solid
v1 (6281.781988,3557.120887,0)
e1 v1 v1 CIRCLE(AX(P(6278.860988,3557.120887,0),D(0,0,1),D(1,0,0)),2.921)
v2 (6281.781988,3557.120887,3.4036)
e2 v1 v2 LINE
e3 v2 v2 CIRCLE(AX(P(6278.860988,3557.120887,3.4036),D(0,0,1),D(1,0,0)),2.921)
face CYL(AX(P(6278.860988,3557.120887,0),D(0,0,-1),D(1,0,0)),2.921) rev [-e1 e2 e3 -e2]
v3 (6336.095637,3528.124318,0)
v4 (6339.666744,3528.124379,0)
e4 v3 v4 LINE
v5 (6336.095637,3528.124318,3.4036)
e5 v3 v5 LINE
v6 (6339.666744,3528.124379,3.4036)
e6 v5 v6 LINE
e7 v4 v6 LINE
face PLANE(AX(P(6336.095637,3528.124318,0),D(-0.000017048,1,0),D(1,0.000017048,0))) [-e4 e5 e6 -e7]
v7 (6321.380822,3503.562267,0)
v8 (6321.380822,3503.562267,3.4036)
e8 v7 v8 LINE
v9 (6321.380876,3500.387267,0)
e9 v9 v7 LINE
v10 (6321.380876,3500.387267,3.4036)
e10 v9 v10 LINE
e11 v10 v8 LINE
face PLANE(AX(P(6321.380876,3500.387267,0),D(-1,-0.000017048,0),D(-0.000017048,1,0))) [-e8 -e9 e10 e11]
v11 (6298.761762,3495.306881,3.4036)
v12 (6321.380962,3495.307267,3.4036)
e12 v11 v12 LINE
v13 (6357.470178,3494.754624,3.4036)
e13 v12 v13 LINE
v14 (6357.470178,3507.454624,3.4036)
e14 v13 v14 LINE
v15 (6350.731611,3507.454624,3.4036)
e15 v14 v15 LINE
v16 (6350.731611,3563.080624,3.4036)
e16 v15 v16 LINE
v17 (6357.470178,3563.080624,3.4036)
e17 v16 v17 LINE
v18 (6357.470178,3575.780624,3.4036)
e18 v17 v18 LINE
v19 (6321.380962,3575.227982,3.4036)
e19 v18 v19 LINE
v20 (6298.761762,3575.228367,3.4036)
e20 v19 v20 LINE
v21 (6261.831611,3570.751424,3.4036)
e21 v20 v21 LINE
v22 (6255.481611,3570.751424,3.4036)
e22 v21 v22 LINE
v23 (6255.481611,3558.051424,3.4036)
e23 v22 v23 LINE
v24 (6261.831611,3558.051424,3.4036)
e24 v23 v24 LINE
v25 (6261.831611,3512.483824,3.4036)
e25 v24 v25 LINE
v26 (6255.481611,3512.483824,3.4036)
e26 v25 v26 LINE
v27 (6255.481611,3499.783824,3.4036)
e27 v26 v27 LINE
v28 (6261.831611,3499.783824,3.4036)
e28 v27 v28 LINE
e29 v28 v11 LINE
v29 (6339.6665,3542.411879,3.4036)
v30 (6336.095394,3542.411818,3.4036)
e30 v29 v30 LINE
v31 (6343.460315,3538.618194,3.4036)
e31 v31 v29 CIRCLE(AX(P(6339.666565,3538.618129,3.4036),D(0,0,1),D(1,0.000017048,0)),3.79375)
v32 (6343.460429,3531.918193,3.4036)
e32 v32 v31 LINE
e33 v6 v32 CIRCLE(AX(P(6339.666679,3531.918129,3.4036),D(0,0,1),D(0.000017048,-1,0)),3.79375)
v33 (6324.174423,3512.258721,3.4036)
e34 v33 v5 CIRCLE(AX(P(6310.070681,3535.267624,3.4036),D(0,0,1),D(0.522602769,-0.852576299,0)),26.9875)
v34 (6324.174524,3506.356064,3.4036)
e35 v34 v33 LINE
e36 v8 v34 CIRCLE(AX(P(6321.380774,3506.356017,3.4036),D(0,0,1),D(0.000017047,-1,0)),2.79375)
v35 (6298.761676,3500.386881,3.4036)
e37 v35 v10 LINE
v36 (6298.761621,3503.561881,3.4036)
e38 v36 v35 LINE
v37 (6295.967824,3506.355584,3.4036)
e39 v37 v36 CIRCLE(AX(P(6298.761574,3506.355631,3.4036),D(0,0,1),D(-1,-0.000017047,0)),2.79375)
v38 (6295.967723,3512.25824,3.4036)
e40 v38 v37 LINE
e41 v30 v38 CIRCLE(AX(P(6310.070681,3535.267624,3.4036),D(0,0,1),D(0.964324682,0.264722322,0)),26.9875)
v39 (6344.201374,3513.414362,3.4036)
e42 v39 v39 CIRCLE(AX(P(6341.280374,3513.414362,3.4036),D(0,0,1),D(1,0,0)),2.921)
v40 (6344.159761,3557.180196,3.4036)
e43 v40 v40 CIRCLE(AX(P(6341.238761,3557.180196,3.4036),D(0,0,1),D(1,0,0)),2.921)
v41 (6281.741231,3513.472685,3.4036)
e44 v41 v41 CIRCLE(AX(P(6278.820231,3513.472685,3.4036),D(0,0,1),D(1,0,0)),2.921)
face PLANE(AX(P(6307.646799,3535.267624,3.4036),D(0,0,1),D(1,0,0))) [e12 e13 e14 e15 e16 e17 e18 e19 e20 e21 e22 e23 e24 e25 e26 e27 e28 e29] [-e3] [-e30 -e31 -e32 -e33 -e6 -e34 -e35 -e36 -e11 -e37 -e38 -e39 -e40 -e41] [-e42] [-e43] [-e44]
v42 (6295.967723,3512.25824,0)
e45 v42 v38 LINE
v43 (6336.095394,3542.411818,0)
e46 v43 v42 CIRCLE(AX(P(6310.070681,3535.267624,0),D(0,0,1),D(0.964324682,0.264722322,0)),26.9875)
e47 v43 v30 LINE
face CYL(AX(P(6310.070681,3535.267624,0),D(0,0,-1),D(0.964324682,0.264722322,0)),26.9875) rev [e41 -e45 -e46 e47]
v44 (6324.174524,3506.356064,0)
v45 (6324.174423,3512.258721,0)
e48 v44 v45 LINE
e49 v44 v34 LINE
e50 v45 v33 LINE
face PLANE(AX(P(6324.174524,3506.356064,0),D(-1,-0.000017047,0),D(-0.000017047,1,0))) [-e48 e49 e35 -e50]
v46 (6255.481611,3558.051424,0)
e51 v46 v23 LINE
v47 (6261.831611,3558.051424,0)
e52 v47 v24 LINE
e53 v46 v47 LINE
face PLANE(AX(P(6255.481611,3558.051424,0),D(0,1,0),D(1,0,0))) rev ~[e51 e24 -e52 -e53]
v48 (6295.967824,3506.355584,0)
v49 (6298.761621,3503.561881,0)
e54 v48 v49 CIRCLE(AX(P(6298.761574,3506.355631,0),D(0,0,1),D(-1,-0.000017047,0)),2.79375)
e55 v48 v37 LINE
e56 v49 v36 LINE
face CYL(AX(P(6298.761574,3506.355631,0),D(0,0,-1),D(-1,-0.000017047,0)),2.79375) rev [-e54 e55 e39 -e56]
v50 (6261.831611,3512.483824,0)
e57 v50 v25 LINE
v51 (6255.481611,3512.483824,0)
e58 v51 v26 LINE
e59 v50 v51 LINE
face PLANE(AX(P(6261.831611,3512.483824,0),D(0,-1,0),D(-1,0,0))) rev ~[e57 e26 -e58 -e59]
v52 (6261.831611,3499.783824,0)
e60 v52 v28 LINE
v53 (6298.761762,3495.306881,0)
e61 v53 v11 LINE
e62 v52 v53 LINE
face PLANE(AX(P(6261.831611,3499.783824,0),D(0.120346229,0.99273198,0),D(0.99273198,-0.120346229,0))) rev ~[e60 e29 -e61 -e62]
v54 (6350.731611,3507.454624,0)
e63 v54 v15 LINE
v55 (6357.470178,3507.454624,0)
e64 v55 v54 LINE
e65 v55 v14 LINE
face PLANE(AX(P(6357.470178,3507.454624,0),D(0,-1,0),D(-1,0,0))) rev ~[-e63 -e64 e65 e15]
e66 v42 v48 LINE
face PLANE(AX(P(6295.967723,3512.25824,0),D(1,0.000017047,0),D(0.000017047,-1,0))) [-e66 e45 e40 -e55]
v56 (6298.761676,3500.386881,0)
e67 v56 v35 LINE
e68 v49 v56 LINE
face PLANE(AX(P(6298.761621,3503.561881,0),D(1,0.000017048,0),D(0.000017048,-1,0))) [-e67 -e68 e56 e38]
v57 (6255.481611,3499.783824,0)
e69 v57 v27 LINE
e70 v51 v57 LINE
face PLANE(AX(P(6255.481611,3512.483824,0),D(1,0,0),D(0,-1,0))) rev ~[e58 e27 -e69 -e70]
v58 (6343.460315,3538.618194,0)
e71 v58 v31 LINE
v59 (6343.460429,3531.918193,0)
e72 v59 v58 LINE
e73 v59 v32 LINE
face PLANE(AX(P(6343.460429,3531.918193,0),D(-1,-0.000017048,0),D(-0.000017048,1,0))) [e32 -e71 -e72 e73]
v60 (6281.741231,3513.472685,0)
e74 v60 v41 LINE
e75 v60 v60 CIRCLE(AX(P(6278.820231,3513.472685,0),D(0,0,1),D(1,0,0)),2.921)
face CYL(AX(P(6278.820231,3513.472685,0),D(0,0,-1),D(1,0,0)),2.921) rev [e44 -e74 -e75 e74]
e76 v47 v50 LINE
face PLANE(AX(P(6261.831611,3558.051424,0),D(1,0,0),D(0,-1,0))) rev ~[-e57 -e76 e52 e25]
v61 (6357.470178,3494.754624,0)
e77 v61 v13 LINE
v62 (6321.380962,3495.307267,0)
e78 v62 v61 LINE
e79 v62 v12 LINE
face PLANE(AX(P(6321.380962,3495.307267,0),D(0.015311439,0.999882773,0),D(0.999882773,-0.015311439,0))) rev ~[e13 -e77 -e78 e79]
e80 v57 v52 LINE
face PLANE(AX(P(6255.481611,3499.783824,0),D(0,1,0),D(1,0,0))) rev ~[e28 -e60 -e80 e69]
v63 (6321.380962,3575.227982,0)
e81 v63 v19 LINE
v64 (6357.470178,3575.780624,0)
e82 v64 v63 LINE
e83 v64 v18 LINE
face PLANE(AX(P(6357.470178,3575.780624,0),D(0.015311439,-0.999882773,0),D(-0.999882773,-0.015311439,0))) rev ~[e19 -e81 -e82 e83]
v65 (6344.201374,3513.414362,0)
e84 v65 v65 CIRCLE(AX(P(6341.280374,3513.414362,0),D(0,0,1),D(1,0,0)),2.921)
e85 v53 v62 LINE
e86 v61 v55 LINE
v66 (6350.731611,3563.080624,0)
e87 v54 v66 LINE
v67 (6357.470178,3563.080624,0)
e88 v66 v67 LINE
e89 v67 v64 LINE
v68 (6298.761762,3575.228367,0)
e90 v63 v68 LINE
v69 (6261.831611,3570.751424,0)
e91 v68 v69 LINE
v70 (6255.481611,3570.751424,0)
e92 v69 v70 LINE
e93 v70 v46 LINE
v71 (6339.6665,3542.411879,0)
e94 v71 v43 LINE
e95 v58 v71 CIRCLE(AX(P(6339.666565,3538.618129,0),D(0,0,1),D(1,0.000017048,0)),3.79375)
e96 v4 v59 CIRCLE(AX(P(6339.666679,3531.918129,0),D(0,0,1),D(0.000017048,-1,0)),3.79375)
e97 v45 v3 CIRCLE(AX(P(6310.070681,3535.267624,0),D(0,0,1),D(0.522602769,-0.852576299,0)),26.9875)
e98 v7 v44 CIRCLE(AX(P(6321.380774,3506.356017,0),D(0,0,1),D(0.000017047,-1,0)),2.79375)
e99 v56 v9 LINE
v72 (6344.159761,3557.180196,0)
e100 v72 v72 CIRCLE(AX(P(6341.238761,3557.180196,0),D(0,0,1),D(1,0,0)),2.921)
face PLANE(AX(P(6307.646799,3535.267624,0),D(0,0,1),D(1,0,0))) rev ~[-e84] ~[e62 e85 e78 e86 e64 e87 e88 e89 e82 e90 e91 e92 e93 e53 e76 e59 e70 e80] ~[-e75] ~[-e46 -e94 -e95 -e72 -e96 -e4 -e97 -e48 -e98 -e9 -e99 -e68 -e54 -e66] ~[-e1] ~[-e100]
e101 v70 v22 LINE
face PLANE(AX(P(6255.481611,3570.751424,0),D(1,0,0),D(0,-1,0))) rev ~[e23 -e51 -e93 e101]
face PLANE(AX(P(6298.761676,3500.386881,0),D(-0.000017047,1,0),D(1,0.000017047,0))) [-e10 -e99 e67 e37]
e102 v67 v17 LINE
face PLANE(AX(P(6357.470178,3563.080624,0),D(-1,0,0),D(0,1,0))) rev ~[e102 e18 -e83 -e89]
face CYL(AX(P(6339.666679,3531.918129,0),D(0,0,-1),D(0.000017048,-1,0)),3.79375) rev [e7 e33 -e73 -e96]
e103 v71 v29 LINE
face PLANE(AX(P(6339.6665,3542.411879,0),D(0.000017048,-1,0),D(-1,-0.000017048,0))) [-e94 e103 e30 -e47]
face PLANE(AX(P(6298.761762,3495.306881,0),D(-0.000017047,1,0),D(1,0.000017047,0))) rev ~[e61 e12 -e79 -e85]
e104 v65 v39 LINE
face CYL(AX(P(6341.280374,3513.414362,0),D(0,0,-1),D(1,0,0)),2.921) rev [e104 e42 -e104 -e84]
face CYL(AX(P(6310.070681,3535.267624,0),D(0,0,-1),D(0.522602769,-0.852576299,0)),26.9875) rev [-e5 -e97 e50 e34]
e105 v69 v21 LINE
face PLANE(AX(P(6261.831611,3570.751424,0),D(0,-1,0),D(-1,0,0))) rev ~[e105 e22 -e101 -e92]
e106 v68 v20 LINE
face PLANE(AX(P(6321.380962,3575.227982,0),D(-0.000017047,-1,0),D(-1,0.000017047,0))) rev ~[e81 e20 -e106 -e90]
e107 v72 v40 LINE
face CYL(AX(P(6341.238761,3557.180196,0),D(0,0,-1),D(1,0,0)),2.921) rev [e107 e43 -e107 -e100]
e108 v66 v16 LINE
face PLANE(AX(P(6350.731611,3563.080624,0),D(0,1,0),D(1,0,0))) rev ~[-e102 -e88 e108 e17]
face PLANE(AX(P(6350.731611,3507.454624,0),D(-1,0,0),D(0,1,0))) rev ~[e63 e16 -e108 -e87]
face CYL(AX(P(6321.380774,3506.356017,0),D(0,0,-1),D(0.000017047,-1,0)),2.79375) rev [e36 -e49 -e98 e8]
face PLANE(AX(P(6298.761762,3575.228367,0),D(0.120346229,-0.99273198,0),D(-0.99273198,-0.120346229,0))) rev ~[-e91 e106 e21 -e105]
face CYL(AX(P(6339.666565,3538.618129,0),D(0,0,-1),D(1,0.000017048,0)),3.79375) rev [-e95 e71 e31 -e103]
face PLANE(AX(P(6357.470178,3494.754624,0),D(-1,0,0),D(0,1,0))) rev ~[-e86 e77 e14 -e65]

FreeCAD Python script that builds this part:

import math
import FreeCAD as App
import Part
import Sketcher

V = App.Vector
Q = App.Units.Quantity


def add_polygon(sketch, points):
    """Adds a closed chain of lines whose ends are joined by coincident constraints."""
    first, n = sketch.GeometryCount, len(points)
    for a, b in zip(points, points[1:] + points[:1]):
        sketch.addGeometry(Part.LineSegment(App.Vector(*a, 0), App.Vector(*b, 0)), False)
    for i in range(n):
        sketch.addConstraint(Sketcher.Constraint("Coincident", first + i, 2, first + (i + 1) % n, 1))

doc = App.newDocument("Part")
params = doc.addObject("Spreadsheet::Sheet", "Params")
for row, (alias, value) in enumerate([
    ("sketch1_diameter", "0.23 in"),
    ("sketch1_height", "0.5 in"),
    ("sketch1_radius", "1.0625 in"),
    ("sketch1_width", "0.25 in"),
    ("sketch1_height2", "2.19 in"),
    ("pad1_length", "0.134 in"),
], start=1):
    params.set(f"A{row}", alias)
    params.set(f"B{row}", "=" + value)
    params.setAlias(f"B{row}", alias)

body = doc.addObject("PartDesign::Body", "Body")

# Sketch on XY plane
sketch1 = body.newObject("Sketcher::SketchObject", "Sketch")
sketch1.AttachmentSupport = (doc.getObject("XY_Plane"), [""])
sketch1.MapMode = "FlatFace"
add_polygon(sketch1, [(6298.8, 3495.3), (6321.4, 3495.3), (6357.5, 3494.8), (6357.5, 3507.5), (6350.7, 3507.5), (6350.7, 3563.1), (6357.5, 3563.1), (6357.5, 3575.8), (6321.4, 3575.2), (6298.8, 3575.2), (6261.8, 3570.8), (6255.5, 3570.8), (6255.5, 3558.1), (6261.8, 3558.1), (6261.8, 3512.5), (6255.5, 3512.5), (6255.5, 3499.8), (6261.8, 3499.8)])  # lines 0-17
sketch1.addGeometry(Part.Circle(V(6278.8, 3513.5, 0), V(0, 0, 1), 2.9), False)  # 18
sketch1.addGeometry(Part.Circle(V(6341.3, 3513.4, 0), V(0, 0, 1), 2.9), False)  # 19
sketch1.addGeometry(Part.Circle(V(6278.9, 3557.1, 0), V(0, 0, 1), 2.9), False)  # 20
sketch1.addGeometry(Part.LineSegment(V(6343.5, 3538.6, 0), V(6343.5, 3531.9, 0)), False)  # 21
sketch1.addGeometry(Part.ArcOfCircle(Part.Circle(V(6339.7, 3531.9, 0), V(0, 0, 1), 3.8), math.radians(-90), math.radians(0)), False)  # 22
sketch1.addGeometry(Part.LineSegment(V(6339.7, 3528.1, 0), V(6336.1, 3528.1, 0)), False)  # 23
sketch1.addGeometry(Part.ArcOfCircle(Part.Circle(V(6310.1, 3535.3, 0), V(0, 0, 1), 27), math.radians(-58), math.radians(-15)), False)  # 24
sketch1.addGeometry(Part.LineSegment(V(6324.2, 3512.3, 0), V(6324.2, 3506.4, 0)), False)  # 25
sketch1.addGeometry(Part.ArcOfCircle(Part.Circle(V(6321.4, 3506.4, 0), V(0, 0, 1), 2.8), math.radians(-90), math.radians(0)), False)  # 26
sketch1.addGeometry(Part.LineSegment(V(6321.4, 3503.6, 0), V(6321.4, 3500.4, 0)), False)  # 27
sketch1.addGeometry(Part.LineSegment(V(6321.4, 3500.4, 0), V(6298.8, 3500.4, 0)), False)  # 28
sketch1.addGeometry(Part.LineSegment(V(6298.8, 3500.4, 0), V(6298.8, 3503.6, 0)), False)  # 29
sketch1.addGeometry(Part.ArcOfCircle(Part.Circle(V(6298.8, 3506.4, 0), V(0, 0, 1), 2.8), math.radians(-180), math.radians(-90)), False)  # 30
sketch1.addGeometry(Part.LineSegment(V(6296, 3506.4, 0), V(6296, 3512.3, 0)), False)  # 31
sketch1.addGeometry(Part.ArcOfCircle(Part.Circle(V(6310.1, 3535.3, 0), V(0, 0, 1), 27), math.radians(15), math.radians(238)), False)  # 32
sketch1.addGeometry(Part.LineSegment(V(6336.1, 3542.4, 0), V(6339.7, 3542.4, 0)), False)  # 33
sketch1.addGeometry(Part.ArcOfCircle(Part.Circle(V(6339.7, 3538.6, 0), V(0, 0, 1), 3.8), math.radians(0), math.radians(90)), False)  # 34
sketch1.addGeometry(Part.Circle(V(6341.2, 3557.2, 0), V(0, 0, 1), 2.9), False)  # 35
sketch1.addConstraint([
    Sketcher.Constraint("Tangent", 21, 2, 22, 2),
    Sketcher.Constraint("Tangent", 22, 1, 23, 1),
    Sketcher.Constraint("Coincident", 23, 2, 24, 2),
    Sketcher.Constraint("Coincident", 24, 1, 25, 1),
    Sketcher.Constraint("Tangent", 25, 2, 26, 2),
    Sketcher.Constraint("Coincident", 26, 1, 27, 1),
    Sketcher.Constraint("Coincident", 27, 2, 28, 1),
    Sketcher.Constraint("Coincident", 28, 2, 29, 1),
    Sketcher.Constraint("Coincident", 29, 2, 30, 2),
    Sketcher.Constraint("Tangent", 30, 1, 31, 1),
    Sketcher.Constraint("Coincident", 31, 2, 32, 2),
    Sketcher.Constraint("Coincident", 32, 1, 33, 1),
    Sketcher.Constraint("Tangent", 33, 2, 34, 2),
    Sketcher.Constraint("Tangent", 34, 1, 21, 1),
    Sketcher.Constraint("Vertical", 2),
    Sketcher.Constraint("Horizontal", 3),
    Sketcher.Constraint("Vertical", 4),
    Sketcher.Constraint("Horizontal", 5),
    Sketcher.Constraint("Vertical", 6),
    Sketcher.Constraint("Horizontal", 10),
    Sketcher.Constraint("Vertical", 11),
    Sketcher.Constraint("Horizontal", 12),
    Sketcher.Constraint("Vertical", 13),
    Sketcher.Constraint("Horizontal", 14),
    Sketcher.Constraint("Vertical", 15),
    Sketcher.Constraint("Horizontal", 16),
    Sketcher.Constraint("Coincident", 32, 3, 24, 3),
    Sketcher.Constraint("Equal", 18, 19),
    Sketcher.Constraint("Equal", 19, 20),
    Sketcher.Constraint("Equal", 26, 30),
    Sketcher.Constraint("Equal", 24, 32),
    Sketcher.Constraint("Equal", 22, 34),
    Sketcher.Constraint("Equal", 20, 35),
    Sketcher.Constraint("Perpendicular", 0, 21),
    Sketcher.Constraint("Perpendicular", 21, 23),
    Sketcher.Constraint("Perpendicular", 23, 25),
    Sketcher.Constraint("Parallel", 25, 27),
    Sketcher.Constraint("Perpendicular", 27, 28),
    Sketcher.Constraint("Perpendicular", 28, 29),
    Sketcher.Constraint("Parallel", 29, 31),
    Sketcher.Constraint("Perpendicular", 31, 33),
    Sketcher.Constraint("Vertical", 2, 2, 5, 2),
    Sketcher.Constraint("Vertical", 0, 2, 7, 2),
    Sketcher.Constraint("Vertical", 9, 2, 12, 2),
    Sketcher.Constraint("Vertical", 11, 2, 14, 2),
    Sketcher.Constraint("Vertical", 13, 2, 16, 2),
    Sketcher.Constraint("Vertical", 8, 2, 17, 2),
    Sketcher.Constraint("Equal", 2, 6),
    Sketcher.Constraint("Equal", 6, 11),
    Sketcher.Constraint("Equal", 11, 15),
    Sketcher.Constraint("Equal", 1, 7),
    Sketcher.Constraint("Equal", 9, 17),
    Sketcher.Constraint("Equal", 8, 28),
    Sketcher.Constraint("Equal", 27, 29),
    Sketcher.Constraint("Equal", 25, 31),
    Sketcher.Constraint("Equal", 23, 33),
    Sketcher.Constraint("Diameter", 18, Q("0.23 in")),
    Sketcher.Constraint("DistanceY", 2, 1, 2, 2, Q("0.5 in")),
    Sketcher.Constraint("Radius", 24, Q("1.0625 in")),
    Sketcher.Constraint("DistanceX", 10, 2, 10, 1, Q("0.25 in")),
    Sketcher.Constraint("DistanceY", 4, 1, 4, 2, Q("2.19 in")),
    Sketcher.Constraint("DistanceY", 0, 2, 27, 2, Q("0.2 in")),
    Sketcher.Constraint("DistanceY", 13, 2, 13, 1, Q("1.794 in")),
    Sketcher.Constraint("Distance", 27, Q("0.125 in")),
    Sketcher.Constraint("Radius", 22, Q("3.79375 mm")),
    Sketcher.Constraint("Radius", 26, Q("2.79375 mm")),
    Sketcher.Constraint("DistanceY", 24, 3, 4, 2, Q("1.095 in")),
    Sketcher.Constraint("DistanceY", 24, 3, 9, 2, Q("1.397 in")),
    Sketcher.Constraint("DistanceY", 23, 2, 32, 1, Q("0.5625 in")),
    Sketcher.Constraint("DistanceY", -1, 1, 19, 3, Q("138.3234001 in")),
    Sketcher.Constraint("Distance", 0, Q("22.6192 mm")),
    Sketcher.Constraint("DistanceX", -1, 1, 33, 2, Q("6339.6665 mm")),
    Sketcher.Constraint("DistanceY", 18, 3, 20, 3, Q("43.648202 mm")),
    Sketcher.Constraint("DistanceX", 24, 3, 22, 3, Q("29.595998 mm")),
    Sketcher.Constraint("DistanceX", 26, 3, 19, 3, Q("19.8996 mm")),
    Sketcher.Constraint("DistanceX", 30, 3, 26, 3, Q("22.6192 mm")),
    Sketcher.Constraint("DistanceX", 22, 3, 1, 2, Q("17.803498 mm")),
    Sketcher.Constraint("DistanceX", 7, 2, 35, 3, Q("19.857799 mm")),
    Sketcher.Constraint("DistanceX", 26, 1, 24, 1, Q("2.793602 mm")),
    Sketcher.Constraint("DistanceX", 26, 3, 27, 2, Q("0.000102 mm")),
    Sketcher.Constraint("DistanceY", 30, 1, 18, 3, Q("7.117101 mm")),
    Sketcher.Constraint("DistanceX", 3, 2, 3, 1, Q("6.738567 mm")),
    Sketcher.Constraint("DistanceX", -1, 1, 18, 3, Q("6278.820231 mm")),
    Sketcher.Constraint("DistanceY", -1, 1, 22, 3, Q("3531.918129 mm")),
    Sketcher.Constraint("DistanceY", -1, 1, 30, 3, Q("3506.355631 mm")),
    Sketcher.Constraint("DistanceX", -1, 1, 35, 3, Q("6341.238761 mm")),
    Sketcher.Constraint("DistanceX", -1, 1, 9, 2, Q("6261.831611 mm")),
    Sketcher.Constraint("DistanceX", 20, 3, 22, 3, Q("60.805691 mm")),
    Sketcher.Constraint("DistanceY", 24, 3, 35, 3, Q("21.912572 mm")),
])
sketch1.setExpression("Constraints[74]", "Params.sketch1_diameter")
sketch1.setExpression("Constraints[75]", "Params.sketch1_height")
sketch1.setExpression("Constraints[76]", "Params.sketch1_radius")
sketch1.setExpression("Constraints[77]", "Params.sketch1_width")
sketch1.setExpression("Constraints[78]", "Params.sketch1_height2")
pad1 = body.newObject("PartDesign::Pad", "Pad")
pad1.Profile = sketch1
pad1.setExpression("Length", "Params.pad1_length")

doc.recompute()
